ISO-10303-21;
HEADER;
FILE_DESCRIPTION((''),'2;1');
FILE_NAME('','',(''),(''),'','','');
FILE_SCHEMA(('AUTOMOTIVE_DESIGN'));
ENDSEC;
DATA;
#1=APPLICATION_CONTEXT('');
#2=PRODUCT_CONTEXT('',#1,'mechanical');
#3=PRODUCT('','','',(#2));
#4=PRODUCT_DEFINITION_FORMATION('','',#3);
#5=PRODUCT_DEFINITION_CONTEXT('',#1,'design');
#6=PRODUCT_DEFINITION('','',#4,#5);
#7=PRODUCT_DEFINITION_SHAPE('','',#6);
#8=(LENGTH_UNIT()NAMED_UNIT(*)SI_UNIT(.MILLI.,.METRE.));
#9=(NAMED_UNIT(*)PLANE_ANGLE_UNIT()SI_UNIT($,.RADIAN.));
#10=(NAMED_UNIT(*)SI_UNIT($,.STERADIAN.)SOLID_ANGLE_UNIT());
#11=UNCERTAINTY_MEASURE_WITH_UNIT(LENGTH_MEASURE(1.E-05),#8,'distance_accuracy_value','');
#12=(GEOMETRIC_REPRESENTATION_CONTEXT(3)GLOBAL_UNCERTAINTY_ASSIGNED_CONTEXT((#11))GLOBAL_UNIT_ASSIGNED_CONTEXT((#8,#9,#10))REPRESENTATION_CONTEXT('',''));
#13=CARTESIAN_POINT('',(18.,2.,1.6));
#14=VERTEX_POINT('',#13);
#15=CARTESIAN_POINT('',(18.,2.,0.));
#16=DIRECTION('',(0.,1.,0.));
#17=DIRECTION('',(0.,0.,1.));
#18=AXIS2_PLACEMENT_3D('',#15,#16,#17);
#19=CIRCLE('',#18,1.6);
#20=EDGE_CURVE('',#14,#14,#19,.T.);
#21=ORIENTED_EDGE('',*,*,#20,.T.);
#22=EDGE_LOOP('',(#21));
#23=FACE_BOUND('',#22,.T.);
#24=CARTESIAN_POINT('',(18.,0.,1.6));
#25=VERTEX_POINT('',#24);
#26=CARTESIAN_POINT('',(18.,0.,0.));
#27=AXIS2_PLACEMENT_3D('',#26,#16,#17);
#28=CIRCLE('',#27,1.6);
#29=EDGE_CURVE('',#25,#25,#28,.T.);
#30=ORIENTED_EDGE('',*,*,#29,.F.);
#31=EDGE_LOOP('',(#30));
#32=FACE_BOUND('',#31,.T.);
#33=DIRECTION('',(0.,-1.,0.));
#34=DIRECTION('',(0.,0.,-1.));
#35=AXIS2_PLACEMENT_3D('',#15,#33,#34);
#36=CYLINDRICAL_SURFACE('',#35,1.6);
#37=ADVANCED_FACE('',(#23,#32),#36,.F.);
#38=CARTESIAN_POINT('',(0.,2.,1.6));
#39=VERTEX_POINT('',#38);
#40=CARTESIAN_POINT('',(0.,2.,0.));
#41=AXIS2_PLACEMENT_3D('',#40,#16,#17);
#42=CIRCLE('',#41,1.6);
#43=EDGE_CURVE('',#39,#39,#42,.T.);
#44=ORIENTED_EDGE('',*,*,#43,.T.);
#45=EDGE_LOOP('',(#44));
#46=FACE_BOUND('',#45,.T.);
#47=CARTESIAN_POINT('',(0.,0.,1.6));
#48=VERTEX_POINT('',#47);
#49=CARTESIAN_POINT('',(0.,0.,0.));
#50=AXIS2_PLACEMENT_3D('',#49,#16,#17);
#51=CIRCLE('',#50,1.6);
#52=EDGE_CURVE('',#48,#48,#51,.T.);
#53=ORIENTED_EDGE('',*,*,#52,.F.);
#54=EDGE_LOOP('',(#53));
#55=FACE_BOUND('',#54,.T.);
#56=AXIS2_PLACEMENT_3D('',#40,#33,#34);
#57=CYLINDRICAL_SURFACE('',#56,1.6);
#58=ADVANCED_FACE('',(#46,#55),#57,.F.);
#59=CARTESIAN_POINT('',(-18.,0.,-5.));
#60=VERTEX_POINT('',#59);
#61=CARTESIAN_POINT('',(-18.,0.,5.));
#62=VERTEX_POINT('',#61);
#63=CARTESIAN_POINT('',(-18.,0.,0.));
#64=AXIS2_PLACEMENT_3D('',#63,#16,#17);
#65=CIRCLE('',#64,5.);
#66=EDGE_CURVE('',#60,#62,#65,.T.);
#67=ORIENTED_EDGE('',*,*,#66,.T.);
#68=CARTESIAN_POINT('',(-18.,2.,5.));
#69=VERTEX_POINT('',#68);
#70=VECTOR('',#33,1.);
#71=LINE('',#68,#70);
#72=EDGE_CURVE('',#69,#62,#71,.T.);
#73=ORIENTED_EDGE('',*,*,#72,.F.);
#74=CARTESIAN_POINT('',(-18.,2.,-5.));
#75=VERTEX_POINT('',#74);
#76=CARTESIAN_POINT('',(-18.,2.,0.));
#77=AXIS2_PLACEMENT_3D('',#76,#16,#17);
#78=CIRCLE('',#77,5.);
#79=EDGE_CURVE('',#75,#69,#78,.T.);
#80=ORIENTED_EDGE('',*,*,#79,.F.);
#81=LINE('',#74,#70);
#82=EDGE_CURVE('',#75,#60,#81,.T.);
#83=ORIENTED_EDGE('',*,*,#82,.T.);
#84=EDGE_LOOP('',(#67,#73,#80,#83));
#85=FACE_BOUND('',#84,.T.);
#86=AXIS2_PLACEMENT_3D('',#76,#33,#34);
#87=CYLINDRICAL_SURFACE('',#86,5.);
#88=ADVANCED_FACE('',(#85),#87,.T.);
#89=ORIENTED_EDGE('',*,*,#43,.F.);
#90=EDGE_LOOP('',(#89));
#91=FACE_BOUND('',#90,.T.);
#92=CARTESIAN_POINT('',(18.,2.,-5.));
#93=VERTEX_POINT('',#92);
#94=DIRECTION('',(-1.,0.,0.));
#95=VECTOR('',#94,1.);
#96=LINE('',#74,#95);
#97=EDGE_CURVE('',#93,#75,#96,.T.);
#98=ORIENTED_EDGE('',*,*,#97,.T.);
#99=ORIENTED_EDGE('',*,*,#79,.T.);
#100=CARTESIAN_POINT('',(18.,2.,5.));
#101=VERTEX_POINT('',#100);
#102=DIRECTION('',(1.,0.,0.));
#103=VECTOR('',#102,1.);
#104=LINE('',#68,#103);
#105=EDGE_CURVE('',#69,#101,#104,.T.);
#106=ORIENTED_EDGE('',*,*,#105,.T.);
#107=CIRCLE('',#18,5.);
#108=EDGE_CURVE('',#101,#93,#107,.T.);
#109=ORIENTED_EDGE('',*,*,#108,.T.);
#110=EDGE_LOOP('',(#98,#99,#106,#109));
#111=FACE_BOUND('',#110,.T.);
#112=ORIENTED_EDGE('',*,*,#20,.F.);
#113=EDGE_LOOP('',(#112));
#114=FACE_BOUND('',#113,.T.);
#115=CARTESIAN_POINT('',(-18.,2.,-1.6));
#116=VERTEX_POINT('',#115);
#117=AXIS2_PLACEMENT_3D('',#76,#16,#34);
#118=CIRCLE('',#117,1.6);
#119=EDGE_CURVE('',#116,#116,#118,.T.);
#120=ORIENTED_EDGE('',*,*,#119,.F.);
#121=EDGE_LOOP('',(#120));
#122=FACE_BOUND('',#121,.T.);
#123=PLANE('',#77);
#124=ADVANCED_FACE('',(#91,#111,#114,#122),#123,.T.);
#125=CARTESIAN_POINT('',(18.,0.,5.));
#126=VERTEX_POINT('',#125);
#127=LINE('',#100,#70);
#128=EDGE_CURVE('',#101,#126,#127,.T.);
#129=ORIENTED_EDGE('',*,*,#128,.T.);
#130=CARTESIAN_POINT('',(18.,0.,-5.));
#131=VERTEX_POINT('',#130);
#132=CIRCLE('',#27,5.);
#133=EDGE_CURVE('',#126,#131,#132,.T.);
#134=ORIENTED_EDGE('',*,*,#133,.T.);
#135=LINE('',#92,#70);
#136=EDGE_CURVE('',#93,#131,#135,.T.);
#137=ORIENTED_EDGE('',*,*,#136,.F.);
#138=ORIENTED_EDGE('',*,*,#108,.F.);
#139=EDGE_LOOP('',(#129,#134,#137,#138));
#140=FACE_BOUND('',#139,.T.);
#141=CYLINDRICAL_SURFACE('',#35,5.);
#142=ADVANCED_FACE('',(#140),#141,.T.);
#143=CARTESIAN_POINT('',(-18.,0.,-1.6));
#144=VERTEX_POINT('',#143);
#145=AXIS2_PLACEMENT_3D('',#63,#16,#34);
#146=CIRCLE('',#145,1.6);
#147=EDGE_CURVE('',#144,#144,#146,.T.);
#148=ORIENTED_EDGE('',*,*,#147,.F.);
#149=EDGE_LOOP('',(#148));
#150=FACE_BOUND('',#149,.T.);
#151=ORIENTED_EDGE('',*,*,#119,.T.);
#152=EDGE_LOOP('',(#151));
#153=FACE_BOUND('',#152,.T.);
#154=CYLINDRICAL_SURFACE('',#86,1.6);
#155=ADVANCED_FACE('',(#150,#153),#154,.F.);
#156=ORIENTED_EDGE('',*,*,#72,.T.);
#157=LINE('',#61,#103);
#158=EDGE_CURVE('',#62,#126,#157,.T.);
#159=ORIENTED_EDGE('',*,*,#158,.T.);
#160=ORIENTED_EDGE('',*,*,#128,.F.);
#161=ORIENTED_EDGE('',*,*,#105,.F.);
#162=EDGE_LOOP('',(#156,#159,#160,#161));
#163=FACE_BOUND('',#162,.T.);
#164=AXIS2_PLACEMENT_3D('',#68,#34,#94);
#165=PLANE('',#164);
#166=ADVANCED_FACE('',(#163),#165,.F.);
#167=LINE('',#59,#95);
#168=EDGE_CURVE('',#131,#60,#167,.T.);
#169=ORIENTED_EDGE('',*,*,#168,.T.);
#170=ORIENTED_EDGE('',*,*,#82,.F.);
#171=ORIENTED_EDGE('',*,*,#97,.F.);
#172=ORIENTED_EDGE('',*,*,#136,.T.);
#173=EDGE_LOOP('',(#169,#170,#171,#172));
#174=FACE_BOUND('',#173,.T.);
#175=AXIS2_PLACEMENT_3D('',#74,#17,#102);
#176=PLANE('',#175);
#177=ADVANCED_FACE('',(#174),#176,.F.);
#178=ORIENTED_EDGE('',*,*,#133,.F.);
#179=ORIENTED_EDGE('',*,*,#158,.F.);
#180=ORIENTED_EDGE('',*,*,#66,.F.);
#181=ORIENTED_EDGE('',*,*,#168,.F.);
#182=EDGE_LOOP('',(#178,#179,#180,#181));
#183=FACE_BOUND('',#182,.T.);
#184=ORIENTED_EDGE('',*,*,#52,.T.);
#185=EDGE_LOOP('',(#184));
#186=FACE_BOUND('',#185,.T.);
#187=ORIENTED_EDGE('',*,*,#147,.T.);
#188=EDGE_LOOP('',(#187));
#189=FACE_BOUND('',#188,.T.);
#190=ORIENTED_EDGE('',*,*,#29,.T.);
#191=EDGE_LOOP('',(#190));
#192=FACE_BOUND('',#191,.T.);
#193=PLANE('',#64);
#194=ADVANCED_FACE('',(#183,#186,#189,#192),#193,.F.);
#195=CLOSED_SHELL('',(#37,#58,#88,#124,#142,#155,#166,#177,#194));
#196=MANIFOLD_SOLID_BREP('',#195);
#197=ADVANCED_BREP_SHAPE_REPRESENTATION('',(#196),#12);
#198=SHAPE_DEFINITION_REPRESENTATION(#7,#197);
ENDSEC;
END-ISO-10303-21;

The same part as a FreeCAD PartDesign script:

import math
import FreeCAD as App
import Part
import Sketcher

doc = App.newDocument("Part")
body = doc.addObject("PartDesign::Body", "Body")

# Sketch on XZ plane
sketch1 = body.newObject("Sketcher::SketchObject", "Sketch")
sketch1.AttachmentSupport = (doc.getObject("XZ_Plane"), [""])
sketch1.MapMode = "FlatFace"
sketch1.addGeometry([
    Part.LineSegment(App.Vector(18, -5, 0), App.Vector(-18, -5, 0)),  # 0
    Part.ArcOfCircle(Part.Circle(App.Vector(-18, 0, 0), App.Vector(0, 0, 1), 5), math.radians(90), math.radians(270)),  # 1
    Part.LineSegment(App.Vector(-18, 5, 0), App.Vector(18, 5, 0)),  # 2
    Part.ArcOfCircle(Part.Circle(App.Vector(18, 0, 0), App.Vector(0, 0, 1), 5), math.radians(-90), math.radians(90)),  # 3
    Part.Circle(App.Vector(18, 0, 0), App.Vector(0, 0, 1), 1.6),  # 4
    Part.Circle(App.Vector(0, 0, 0), App.Vector(0, 0, 1), 1.6),  # 5
    Part.Circle(App.Vector(-18, 0, 0), App.Vector(0, 0, 1), 1.6),  # 6
], False)
sketch1.addConstraint([
    Sketcher.Constraint("Tangent", 0, 2, 1, 2),
    Sketcher.Constraint("Tangent", 1, 1, 2, 1),
    Sketcher.Constraint("Tangent", 2, 2, 3, 2),
    Sketcher.Constraint("Tangent", 3, 1, 0, 1),
    Sketcher.Constraint("Horizontal", 0),
    Sketcher.Constraint("Horizontal", 2),
    Sketcher.Constraint("Coincident", 5, 3, -1, 1),
    Sketcher.Constraint("Coincident", 4, 3, 3, 3),
    Sketcher.Constraint("Coincident", 6, 3, 1, 3),
    Sketcher.Constraint("Equal", 4, 5),
    Sketcher.Constraint("Equal", 5, 6),
    Sketcher.Constraint("Symmetric", 1, 3, 3, 3, -1, 1),
    Sketcher.Constraint("Radius", 1, 5.0),
    Sketcher.Constraint("Diameter", 4, 3.2),
    Sketcher.Constraint("DistanceX", 0, 2, 0, 1, 36.0),
])
pad1 = body.newObject("PartDesign::Pad", "Pad")
pad1.Profile = sketch1
pad1.Length = 2
pad1.Reversed = True

doc.recompute()
